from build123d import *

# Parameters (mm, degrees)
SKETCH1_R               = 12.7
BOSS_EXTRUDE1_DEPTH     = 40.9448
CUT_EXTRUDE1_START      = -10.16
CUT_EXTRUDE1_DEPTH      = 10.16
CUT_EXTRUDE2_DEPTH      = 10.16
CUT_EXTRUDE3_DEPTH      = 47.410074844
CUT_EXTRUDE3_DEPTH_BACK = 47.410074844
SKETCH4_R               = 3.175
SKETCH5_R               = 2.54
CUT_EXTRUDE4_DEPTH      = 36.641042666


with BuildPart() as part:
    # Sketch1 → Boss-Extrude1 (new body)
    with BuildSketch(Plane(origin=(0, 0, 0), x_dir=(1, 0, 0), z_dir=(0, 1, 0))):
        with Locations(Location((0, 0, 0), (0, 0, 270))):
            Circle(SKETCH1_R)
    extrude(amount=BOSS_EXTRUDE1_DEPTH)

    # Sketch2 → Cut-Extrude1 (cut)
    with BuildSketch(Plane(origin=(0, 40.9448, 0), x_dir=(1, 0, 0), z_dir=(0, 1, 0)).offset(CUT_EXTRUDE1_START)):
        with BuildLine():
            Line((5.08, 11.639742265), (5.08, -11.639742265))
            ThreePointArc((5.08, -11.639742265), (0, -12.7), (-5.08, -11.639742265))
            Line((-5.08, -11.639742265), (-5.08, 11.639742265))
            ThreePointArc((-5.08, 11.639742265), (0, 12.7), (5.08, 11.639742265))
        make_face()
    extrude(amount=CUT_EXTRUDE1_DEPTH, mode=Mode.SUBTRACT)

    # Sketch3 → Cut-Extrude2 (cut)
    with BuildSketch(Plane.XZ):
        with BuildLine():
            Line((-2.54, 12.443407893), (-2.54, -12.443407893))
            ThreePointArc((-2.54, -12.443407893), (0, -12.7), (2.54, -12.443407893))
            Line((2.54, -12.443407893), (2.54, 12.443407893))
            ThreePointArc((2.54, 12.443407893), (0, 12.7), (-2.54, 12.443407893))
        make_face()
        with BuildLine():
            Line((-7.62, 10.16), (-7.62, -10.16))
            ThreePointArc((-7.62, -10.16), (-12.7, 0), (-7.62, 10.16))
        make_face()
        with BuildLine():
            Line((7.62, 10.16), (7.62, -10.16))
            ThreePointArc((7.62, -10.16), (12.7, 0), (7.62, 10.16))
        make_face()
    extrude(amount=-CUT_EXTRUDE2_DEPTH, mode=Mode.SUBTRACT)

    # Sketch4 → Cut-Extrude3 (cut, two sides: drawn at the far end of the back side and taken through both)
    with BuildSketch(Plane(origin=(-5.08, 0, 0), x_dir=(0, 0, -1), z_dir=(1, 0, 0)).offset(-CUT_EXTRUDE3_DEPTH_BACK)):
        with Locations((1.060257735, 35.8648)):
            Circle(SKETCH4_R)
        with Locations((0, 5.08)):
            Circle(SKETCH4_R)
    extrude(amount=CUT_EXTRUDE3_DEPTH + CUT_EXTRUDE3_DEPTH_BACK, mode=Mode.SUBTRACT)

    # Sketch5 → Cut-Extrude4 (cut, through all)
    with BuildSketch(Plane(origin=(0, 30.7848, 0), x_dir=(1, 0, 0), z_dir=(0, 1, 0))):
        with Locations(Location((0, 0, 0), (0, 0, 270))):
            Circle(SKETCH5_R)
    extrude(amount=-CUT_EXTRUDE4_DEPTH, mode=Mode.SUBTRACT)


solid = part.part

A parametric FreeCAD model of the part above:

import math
import FreeCAD as App
import Part
import Sketcher

V = App.Vector
Q = App.Units.Quantity

doc = App.newDocument("Part")
body = doc.addObject("PartDesign::Body", "Body")

# Sketch on XZ plane
sketch1 = body.newObject("Sketcher::SketchObject", "Sketch")
sketch1.AttachmentSupport = (doc.getObject("XZ_Plane"), [""])
sketch1.MapMode = "FlatFace"
sketch1.addGeometry(Part.Circle(V(0, 0, 0), V(0, 0, 1), 13), False)
sketch1.addConstraint(Sketcher.Constraint("Coincident", 0, 3, -1, 1))
sketch1.addConstraint(Sketcher.Constraint("Diameter", 0, Q("1 in")))
pad1 = body.newObject("PartDesign::Pad", "Pad")
pad1.Profile = sketch1
pad1.Length = Q("1.612 in")
pad1.Reversed = True

# Sketch on XZ plane
sketch2 = body.newObject("Sketcher::SketchObject", "Sketch001")
sketch2.AttachmentSupport = (doc.getObject("XZ_Plane"), [""])
sketch2.MapMode = "FlatFace"
sketch2.AttachmentOffset = App.Placement(V(0, 0, -1.212 * 25.4), App.Rotation())
sketch2.addGeometry(Part.LineSegment(V(5, 12, 0), V(5, -12, 0)), False)
sketch2.addGeometry(Part.ArcOfCircle(Part.Circle(V(0, 0, 0), V(0, 0, 1), 13), math.radians(-114), math.radians(-66)), False)
sketch2.addGeometry(Part.LineSegment(V(-5, -12, 0), V(-5, 12, 0)), False)
sketch2.addGeometry(Part.ArcOfCircle(Part.Circle(V(0, 0, 0), V(0, 0, 1), 13), math.radians(66), math.radians(114)), False)
sketch2.addConstraint(Sketcher.Constraint("Coincident", 0, 2, 1, 2))
sketch2.addConstraint(Sketcher.Constraint("Coincident", 1, 1, 2, 1))
sketch2.addConstraint(Sketcher.Constraint("Coincident", 2, 2, 3, 2))
sketch2.addConstraint(Sketcher.Constraint("Coincident", 3, 1, 0, 1))
sketch2.addConstraint(Sketcher.Constraint("Vertical", 0))
sketch2.addConstraint(Sketcher.Constraint("Vertical", 2))
sketch2.addConstraint(Sketcher.Constraint("Coincident", 1, 3, -1, 1))
sketch2.addConstraint(Sketcher.Constraint("Coincident", 3, 3, -1, 1))
sketch2.addConstraint(Sketcher.Constraint("Equal", 1, 3))
sketch2.addConstraint(Sketcher.Constraint("Horizontal", 0, 2, 1, 1))
sketch2.addConstraint(Sketcher.Constraint("Radius", 1, Q("0.5 in")))
sketch2.addConstraint(Sketcher.Constraint("DistanceX", -1, 1, 0, 2, Q("0.2 in")))
pocket1 = body.newObject("PartDesign::Pocket", "Pocket")
pocket1.Profile = sketch2
pocket1.Length = Q("0.4 in")

# Sketch on XZ plane
sketch3 = body.newObject("Sketcher::SketchObject", "Sketch002")
sketch3.AttachmentSupport = (doc.getObject("XZ_Plane"), [""])
sketch3.MapMode = "FlatFace"
sketch3.addGeometry(Part.LineSegment(V(-3, 12, 0), V(-3, -12, 0)), False)
sketch3.addGeometry(Part.ArcOfCircle(Part.Circle(V(0, 0, 0), V(0, 0, 1), 13), math.radians(-102), math.radians(-78)), False)
sketch3.addGeometry(Part.LineSegment(V(3, -12, 0), V(3, 12, 0)), False)
sketch3.addGeometry(Part.ArcOfCircle(Part.Circle(V(0, 0, 0), V(0, 0, 1), 13), math.radians(78), math.radians(102)), False)
sketch3.addGeometry(Part.LineSegment(V(-8, -10, 0), V(-8, 10, 0)), False)
sketch3.addGeometry(Part.ArcOfCircle(Part.Circle(V(0, 0, 0), V(0, 0, 1), 13), math.radians(127), math.radians(233)), False)
sketch3.addGeometry(Part.LineSegment(V(8, 10, 0), V(8, -10, 0)), False)
sketch3.addGeometry(Part.ArcOfCircle(Part.Circle(V(0, 0, 0), V(0, 0, 1), 13), math.radians(-53), math.radians(53)), False)
sketch3.addConstraint(Sketcher.Constraint("Coincident", 0, 2, 1, 1))
sketch3.addConstraint(Sketcher.Constraint("Coincident", 1, 2, 2, 1))
sketch3.addConstraint(Sketcher.Constraint("Coincident", 2, 2, 3, 1))
sketch3.addConstraint(Sketcher.Constraint("Coincident", 3, 2, 0, 1))
sketch3.addConstraint(Sketcher.Constraint("Coincident", 4, 1, 5, 2))
sketch3.addConstraint(Sketcher.Constraint("Coincident", 5, 1, 4, 2))
sketch3.addConstraint(Sketcher.Constraint("Coincident", 6, 1, 7, 2))
sketch3.addConstraint(Sketcher.Constraint("Coincident", 7, 1, 6, 2))
sketch3.addConstraint(Sketcher.Constraint("Vertical", 0))
sketch3.addConstraint(Sketcher.Constraint("Vertical", 2))
sketch3.addConstraint(Sketcher.Constraint("Vertical", 4))
sketch3.addConstraint(Sketcher.Constraint("Vertical", 6))
sketch3.addConstraint(Sketcher.Constraint("Coincident", 1, 3, -1, 1))
sketch3.addConstraint(Sketcher.Constraint("Coincident", 3, 3, -1, 1))
sketch3.addConstraint(Sketcher.Constraint("Coincident", 5, 3, -1, 1))
sketch3.addConstraint(Sketcher.Constraint("Coincident", 7, 3, -1, 1))
sketch3.addConstraint(Sketcher.Constraint("Equal", 1, 3))
sketch3.addConstraint(Sketcher.Constraint("Equal", 3, 5))
sketch3.addConstraint(Sketcher.Constraint("Equal", 5, 7))
sketch3.addConstraint(Sketcher.Constraint("Horizontal", 0, 2, 1, 2))
sketch3.addConstraint(Sketcher.Constraint("Horizontal", 5, 1, 6, 1))
sketch3.addConstraint(Sketcher.Constraint("Radius", 1, Q("0.5 in")))
sketch3.addConstraint(Sketcher.Constraint("DistanceY", 4, 1, 4, 2, Q("0.8 in")))
sketch3.addConstraint(Sketcher.Constraint("DistanceX", 0, 2, -1, 1, Q("0.1 in")))
pocket2 = body.newObject("PartDesign::Pocket", "Pocket001")
pocket2.Profile = sketch3
pocket2.Length = Q("0.4 in")

# Sketch on YZ plane
sketch4 = body.newObject("Sketcher::SketchObject", "Sketch003")
sketch4.AttachmentSupport = (doc.getObject("YZ_Plane"), [""])
sketch4.MapMode = "FlatFace"
sketch4.AttachmentOffset = App.Placement(V(0, 0, -0.2 * 25.4), App.Rotation())
sketch4.addGeometry(Part.Circle(V(35.9, -1.1, 0), V(0, 0, 1), 3.2), False)
sketch4.addGeometry(Part.Circle(V(5.1, 0, 0), V(0, 0, 1), 3.2), False)
sketch4.addConstraint(Sketcher.Constraint("Equal", 0, 1))
sketch4.addConstraint(Sketcher.Constraint("PointOnObject", 1, 3, -1))
sketch4.addConstraint(Sketcher.Constraint("Diameter", 0, Q("0.25 in")))
sketch4.addConstraint(Sketcher.Constraint("DistanceX", -1, 1, 1, 3, Q("0.2 in")))
sketch4.addConstraint(Sketcher.Constraint("DistanceX", -1, 1, 0, 3, Q("1.412 in")))
sketch4.addConstraint(Sketcher.Constraint("DistanceY", 0, 3, -1, 1, 1.060258))
pocket3 = body.newObject("PartDesign::Pocket", "Pocket002")
pocket3.Profile = sketch4
pocket3.Type = "ThroughAll"
pocket3.Midplane = True

# Sketch on XZ plane
sketch5 = body.newObject("Sketcher::SketchObject", "Sketch004")
sketch5.AttachmentSupport = (doc.getObject("XZ_Plane"), [""])
sketch5.MapMode = "FlatFace"
sketch5.AttachmentOffset = App.Placement(V(0, 0, -1.212 * 25.4), App.Rotation())
sketch5.addGeometry(Part.Circle(V(0, 0, 0), V(0, 0, 1), 2.5), False)
sketch5.addConstraint(Sketcher.Constraint("Coincident", 0, 3, -1, 1))
sketch5.addConstraint(Sketcher.Constraint("Diameter", 0, Q("0.2 in")))
pocket4 = body.newObject("PartDesign::Pocket", "Pocket003")
pocket4.Profile = sketch5
pocket4.Type = "ThroughAll"
pocket4.Reversed = True

doc.recompute()
